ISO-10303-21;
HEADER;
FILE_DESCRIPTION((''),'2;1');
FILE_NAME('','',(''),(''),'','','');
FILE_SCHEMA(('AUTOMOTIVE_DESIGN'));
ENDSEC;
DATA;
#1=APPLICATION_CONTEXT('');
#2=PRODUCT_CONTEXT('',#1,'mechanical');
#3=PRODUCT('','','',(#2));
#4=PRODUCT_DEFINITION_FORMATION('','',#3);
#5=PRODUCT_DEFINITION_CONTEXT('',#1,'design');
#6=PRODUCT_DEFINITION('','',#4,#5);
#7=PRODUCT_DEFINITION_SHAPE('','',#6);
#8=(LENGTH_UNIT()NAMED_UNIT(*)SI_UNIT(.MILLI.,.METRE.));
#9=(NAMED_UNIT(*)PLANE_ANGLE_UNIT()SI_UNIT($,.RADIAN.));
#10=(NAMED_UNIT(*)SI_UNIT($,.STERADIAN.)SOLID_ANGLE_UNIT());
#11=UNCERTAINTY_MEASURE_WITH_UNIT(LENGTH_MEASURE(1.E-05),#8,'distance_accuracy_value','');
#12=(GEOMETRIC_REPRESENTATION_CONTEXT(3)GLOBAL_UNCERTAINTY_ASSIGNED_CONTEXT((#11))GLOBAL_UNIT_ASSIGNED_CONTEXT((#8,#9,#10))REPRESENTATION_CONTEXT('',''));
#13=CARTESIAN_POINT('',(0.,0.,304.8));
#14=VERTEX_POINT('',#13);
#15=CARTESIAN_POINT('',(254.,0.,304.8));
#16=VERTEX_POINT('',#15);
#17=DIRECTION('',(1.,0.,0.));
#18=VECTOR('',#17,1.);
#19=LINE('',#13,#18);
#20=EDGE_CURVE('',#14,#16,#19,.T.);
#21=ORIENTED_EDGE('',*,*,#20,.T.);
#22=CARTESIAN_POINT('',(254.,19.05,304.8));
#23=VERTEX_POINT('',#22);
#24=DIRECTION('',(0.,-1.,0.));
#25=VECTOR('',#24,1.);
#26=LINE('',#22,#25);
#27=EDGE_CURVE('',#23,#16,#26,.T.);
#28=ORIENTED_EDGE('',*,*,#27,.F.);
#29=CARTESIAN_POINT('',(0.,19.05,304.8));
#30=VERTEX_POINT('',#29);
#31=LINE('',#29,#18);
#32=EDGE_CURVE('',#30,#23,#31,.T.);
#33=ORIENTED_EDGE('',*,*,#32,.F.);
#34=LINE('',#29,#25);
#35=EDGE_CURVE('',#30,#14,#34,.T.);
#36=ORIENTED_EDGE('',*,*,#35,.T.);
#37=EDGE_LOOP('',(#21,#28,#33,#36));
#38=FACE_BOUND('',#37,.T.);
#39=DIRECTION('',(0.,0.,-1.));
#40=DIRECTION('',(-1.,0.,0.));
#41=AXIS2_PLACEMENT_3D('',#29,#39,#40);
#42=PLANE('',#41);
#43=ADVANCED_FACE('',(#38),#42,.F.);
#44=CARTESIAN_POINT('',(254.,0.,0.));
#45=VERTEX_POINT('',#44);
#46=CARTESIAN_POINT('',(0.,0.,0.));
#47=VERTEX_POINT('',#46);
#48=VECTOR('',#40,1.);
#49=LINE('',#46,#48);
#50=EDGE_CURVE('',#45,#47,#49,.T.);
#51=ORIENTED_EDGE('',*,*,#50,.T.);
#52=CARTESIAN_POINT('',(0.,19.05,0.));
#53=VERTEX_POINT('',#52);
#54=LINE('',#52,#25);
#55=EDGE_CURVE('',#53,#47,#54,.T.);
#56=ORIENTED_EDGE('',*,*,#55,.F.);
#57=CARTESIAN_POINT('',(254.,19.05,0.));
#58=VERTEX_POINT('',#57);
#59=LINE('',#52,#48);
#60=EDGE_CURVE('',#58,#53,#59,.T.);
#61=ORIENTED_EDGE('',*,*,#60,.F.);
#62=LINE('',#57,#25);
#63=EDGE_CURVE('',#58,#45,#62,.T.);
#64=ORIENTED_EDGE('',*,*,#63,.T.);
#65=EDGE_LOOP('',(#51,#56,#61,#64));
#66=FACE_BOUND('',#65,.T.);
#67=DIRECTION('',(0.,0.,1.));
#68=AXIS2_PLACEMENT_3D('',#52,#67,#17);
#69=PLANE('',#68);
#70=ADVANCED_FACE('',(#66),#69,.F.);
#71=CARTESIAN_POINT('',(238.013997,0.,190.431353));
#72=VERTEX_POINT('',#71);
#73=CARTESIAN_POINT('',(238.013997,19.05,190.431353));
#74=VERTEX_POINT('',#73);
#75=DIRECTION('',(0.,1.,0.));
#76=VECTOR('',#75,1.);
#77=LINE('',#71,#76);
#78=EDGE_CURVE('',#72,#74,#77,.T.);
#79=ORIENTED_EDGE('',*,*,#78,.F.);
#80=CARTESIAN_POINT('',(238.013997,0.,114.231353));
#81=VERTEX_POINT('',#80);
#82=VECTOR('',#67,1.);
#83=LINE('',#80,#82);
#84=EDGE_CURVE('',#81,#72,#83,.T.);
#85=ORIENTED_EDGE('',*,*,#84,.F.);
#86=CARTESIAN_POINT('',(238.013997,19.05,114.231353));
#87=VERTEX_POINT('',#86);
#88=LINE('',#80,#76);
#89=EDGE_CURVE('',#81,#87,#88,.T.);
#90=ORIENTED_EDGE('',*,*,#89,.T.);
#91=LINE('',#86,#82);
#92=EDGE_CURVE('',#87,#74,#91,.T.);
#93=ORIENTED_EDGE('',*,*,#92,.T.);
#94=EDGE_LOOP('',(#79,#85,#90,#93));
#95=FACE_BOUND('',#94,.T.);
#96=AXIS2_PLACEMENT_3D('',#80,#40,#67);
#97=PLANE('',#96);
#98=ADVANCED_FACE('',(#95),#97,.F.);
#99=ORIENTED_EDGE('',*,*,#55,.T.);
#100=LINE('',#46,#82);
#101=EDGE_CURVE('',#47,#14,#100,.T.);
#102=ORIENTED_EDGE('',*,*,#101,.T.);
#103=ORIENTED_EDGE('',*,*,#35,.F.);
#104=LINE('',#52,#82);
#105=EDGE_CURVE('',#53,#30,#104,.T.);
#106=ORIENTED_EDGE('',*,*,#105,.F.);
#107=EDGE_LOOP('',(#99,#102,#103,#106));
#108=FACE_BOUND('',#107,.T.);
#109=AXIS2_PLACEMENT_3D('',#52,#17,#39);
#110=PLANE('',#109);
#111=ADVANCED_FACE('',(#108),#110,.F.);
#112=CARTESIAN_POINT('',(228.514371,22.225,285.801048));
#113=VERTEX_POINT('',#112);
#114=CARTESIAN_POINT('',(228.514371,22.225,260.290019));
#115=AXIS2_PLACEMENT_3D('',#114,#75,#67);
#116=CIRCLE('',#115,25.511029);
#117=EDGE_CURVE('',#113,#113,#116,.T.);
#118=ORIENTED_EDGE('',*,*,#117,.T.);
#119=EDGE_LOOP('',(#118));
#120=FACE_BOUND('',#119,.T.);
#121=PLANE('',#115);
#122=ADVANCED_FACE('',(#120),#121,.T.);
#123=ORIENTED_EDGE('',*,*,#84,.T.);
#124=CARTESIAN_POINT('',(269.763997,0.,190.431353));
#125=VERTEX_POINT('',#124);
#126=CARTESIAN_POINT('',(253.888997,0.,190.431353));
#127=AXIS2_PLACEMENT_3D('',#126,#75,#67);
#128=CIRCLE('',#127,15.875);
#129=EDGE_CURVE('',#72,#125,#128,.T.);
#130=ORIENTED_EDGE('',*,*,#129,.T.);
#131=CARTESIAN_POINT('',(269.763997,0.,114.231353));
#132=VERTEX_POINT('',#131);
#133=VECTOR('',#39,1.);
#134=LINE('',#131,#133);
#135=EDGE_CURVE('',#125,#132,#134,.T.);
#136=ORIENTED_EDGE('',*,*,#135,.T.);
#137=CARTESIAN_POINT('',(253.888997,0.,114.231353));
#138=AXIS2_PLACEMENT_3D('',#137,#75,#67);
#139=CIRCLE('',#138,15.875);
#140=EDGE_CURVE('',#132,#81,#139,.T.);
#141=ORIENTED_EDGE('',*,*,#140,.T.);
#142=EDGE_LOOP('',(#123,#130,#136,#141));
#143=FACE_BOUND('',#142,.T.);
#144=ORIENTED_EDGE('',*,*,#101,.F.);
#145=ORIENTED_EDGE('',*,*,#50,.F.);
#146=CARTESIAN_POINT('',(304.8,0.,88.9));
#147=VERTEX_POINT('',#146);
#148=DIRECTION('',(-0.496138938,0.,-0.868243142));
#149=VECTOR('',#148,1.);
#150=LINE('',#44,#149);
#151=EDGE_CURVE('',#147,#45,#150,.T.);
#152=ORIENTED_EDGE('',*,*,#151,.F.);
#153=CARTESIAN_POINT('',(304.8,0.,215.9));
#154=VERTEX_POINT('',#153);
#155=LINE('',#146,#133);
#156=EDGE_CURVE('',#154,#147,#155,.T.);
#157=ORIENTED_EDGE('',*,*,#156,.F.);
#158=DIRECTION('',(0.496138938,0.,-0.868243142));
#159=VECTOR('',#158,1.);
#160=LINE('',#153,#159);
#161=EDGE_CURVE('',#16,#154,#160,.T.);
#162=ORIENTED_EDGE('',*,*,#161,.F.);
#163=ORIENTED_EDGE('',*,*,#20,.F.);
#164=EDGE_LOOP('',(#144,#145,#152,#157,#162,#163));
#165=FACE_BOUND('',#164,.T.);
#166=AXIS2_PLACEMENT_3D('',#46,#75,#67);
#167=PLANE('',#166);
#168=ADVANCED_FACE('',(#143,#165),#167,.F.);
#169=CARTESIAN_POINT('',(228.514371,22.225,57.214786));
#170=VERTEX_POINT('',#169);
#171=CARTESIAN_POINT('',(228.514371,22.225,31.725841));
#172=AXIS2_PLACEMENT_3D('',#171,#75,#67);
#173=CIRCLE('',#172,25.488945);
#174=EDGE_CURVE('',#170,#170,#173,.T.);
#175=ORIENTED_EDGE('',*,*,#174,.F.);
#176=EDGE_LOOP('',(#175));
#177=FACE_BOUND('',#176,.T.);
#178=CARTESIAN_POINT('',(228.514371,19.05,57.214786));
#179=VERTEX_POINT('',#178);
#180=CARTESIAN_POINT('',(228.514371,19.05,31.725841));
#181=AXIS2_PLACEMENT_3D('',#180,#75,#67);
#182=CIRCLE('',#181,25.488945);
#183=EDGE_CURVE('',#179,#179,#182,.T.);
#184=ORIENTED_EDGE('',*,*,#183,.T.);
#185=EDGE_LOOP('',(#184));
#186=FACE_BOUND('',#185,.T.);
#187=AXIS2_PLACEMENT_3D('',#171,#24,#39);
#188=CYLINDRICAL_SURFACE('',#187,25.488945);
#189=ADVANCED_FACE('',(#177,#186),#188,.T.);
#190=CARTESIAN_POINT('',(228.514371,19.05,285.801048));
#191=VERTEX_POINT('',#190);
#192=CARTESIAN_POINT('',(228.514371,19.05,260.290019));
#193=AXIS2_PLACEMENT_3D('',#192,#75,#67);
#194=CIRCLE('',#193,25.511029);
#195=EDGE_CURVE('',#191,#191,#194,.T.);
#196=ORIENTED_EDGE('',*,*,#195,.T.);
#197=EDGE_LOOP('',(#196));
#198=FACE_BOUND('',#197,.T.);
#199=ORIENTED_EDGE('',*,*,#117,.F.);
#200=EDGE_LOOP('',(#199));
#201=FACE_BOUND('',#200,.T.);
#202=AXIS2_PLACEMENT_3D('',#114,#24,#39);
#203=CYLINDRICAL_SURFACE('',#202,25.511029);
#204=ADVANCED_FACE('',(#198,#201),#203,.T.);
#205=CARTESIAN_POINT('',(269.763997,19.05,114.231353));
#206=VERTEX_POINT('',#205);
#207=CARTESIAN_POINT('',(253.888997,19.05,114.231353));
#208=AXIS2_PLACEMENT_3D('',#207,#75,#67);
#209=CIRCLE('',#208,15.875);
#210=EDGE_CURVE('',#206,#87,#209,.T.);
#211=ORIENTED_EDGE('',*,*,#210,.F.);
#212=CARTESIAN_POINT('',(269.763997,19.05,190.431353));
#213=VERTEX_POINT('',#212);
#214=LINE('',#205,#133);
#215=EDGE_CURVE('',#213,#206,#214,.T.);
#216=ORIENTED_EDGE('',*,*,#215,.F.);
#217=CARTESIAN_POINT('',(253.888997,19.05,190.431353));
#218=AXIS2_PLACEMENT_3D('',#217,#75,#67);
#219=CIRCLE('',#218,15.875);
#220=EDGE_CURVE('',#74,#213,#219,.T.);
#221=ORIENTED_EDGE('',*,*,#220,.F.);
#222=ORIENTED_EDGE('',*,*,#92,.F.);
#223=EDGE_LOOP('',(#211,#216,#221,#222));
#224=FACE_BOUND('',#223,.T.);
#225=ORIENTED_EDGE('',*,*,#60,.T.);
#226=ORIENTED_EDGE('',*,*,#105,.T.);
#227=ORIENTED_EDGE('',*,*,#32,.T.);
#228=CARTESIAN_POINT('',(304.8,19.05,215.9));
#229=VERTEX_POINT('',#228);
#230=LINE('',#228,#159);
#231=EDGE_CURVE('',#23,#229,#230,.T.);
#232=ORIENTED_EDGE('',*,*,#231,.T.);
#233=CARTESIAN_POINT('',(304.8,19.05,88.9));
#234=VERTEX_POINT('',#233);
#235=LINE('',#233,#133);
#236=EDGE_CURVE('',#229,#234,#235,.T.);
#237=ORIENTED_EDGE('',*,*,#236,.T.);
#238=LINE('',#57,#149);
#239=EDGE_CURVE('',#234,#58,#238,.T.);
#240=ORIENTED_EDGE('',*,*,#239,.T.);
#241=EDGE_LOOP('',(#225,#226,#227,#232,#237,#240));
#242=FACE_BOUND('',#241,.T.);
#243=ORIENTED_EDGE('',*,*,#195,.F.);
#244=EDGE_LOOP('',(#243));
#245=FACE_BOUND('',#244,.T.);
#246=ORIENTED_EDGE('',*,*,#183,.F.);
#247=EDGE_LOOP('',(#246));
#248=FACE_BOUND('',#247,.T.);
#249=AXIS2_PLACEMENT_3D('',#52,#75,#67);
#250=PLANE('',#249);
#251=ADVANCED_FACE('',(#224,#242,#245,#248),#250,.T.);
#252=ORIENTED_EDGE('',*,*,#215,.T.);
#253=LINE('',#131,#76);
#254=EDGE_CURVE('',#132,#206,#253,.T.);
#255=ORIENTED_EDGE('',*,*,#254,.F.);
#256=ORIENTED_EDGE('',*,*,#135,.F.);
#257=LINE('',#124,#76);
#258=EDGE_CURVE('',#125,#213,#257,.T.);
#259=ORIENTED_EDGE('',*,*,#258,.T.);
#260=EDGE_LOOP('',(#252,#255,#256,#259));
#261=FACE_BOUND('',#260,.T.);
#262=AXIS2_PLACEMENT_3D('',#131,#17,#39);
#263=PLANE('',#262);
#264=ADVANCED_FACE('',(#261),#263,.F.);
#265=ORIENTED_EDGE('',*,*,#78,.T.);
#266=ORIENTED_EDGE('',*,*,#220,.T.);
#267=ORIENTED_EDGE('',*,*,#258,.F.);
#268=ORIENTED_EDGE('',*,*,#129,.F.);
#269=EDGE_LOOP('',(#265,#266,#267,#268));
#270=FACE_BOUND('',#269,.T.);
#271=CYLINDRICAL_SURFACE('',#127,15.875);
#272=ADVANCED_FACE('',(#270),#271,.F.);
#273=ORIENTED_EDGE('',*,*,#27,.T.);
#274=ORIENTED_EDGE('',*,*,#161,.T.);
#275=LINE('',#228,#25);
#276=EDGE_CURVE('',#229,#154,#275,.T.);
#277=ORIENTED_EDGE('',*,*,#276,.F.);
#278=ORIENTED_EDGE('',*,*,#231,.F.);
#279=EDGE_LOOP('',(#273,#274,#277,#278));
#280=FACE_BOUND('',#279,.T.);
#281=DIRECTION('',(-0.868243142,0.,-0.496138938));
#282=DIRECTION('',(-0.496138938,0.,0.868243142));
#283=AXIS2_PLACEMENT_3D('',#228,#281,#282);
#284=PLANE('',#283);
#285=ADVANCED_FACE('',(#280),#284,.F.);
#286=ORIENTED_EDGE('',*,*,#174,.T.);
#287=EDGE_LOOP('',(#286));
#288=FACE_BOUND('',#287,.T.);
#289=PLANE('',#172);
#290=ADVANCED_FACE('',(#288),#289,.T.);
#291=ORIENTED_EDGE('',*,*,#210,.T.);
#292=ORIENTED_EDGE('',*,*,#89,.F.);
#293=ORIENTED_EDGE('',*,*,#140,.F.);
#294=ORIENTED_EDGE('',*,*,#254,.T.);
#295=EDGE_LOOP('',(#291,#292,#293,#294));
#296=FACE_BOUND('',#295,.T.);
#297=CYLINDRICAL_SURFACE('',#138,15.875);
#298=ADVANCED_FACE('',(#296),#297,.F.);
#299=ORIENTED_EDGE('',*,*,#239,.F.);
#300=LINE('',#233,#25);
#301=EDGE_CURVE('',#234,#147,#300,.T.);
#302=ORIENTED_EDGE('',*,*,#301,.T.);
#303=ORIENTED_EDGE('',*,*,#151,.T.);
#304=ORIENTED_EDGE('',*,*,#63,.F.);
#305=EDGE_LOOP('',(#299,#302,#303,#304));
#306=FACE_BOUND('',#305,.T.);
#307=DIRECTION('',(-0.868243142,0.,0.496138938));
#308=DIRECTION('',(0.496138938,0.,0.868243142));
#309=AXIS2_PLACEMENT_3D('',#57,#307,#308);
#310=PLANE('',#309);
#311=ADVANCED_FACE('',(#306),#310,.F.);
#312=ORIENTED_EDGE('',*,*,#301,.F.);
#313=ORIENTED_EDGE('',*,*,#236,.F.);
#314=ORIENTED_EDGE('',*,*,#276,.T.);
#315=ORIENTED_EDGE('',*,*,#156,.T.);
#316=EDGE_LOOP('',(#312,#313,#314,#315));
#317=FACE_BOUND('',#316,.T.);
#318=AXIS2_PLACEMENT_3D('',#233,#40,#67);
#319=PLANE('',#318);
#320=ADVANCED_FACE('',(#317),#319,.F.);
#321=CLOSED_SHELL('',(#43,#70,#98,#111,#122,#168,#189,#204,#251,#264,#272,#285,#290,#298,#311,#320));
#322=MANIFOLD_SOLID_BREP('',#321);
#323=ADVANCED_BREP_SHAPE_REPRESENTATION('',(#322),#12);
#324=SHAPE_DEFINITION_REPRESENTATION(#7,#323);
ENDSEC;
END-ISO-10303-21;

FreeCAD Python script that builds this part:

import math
import FreeCAD as App
import Part
import Sketcher
from FreeCAD import Vector
Q = App.Units.Quantity

doc = App.newDocument("Part")
params = doc.addObject("Spreadsheet::Sheet", "Params")
for row, (alias, value) in enumerate([
    ("sketch1_width", "10 in"),
    ("sketch1_height", "12 in"),
    ("sketch1_height2", "5 in"),
    ("pad1_length", "0.75 in"),
    ("pad2_length", "0.125 in"),
    ("sketch3_height", "3 in"),
    ("sketch3_radius", "0.625 in"),
    ("pocket1_length", "0.75 in"),
], start=1):
    params.set(f"A{row}", alias)
    params.set(f"B{row}", "=" + value)
    params.setAlias(f"B{row}", alias)

body = doc.addObject("PartDesign::Body", "Body")

sketch1 = body.newObject("Sketcher::SketchObject", "Sketch")
sketch1.AttachmentSupport = (doc.getObject("XZ_Plane"), [""])
sketch1.MapMode = "FlatFace"
sketch1.addGeometry([
    Part.LineSegment(Vector(254, 0, 0), Vector(0, 0, 0)),
    Part.LineSegment(Vector(0, 0, 0), Vector(0, 305, 0)),
    Part.LineSegment(Vector(0, 305, 0), Vector(254, 305, 0)),
    Part.LineSegment(Vector(254, 305, 0), Vector(305, 216, 0)),
    Part.LineSegment(Vector(305, 216, 0), Vector(305, 89, 0)),
    Part.LineSegment(Vector(305, 89, 0), Vector(254, 0, 0)),
], False)
sketch1.addConstraint([
    Sketcher.Constraint("Coincident", 0, 2, 1, 1),
    Sketcher.Constraint("Coincident", 1, 2, 2, 1),
    Sketcher.Constraint("Coincident", 2, 2, 3, 1),
    Sketcher.Constraint("Coincident", 3, 2, 4, 1),
    Sketcher.Constraint("Coincident", 4, 2, 5, 1),
    Sketcher.Constraint("Coincident", 5, 2, 0, 1),
    Sketcher.Constraint("Horizontal", 0),
    Sketcher.Constraint("Vertical", 1),
    Sketcher.Constraint("Horizontal", 2),
    Sketcher.Constraint("Vertical", 4),
    Sketcher.Constraint("Coincident", 0, 2, -1, 1),
    Sketcher.Constraint("Vertical", 2, 2, 5, 2),
    Sketcher.Constraint("Equal", 3, 5),
    Sketcher.Constraint("DistanceX", 0, 2, 0, 1, Q("10 in")),
    Sketcher.Constraint("DistanceY", 1, 1, 1, 2, Q("12 in")),
    Sketcher.Constraint("DistanceY", 4, 2, 4, 1, Q("5 in")),
    Sketcher.Constraint("DistanceX", -1, 1, 3, 2, Q("12 in")),
])
sketch1.setExpression("Constraints[13]", "Params.sketch1_width")
sketch1.setExpression("Constraints[14]", "Params.sketch1_height")
sketch1.setExpression("Constraints[15]", "Params.sketch1_height2")
pad1 = body.newObject("PartDesign::Pad", "Pad")
pad1.Profile = sketch1
pad1.setExpression("Length", "Params.pad1_length")
pad1.Reversed = True

sketch2 = body.newObject("Sketcher::SketchObject", "Sketch001")
sketch2.AttachmentSupport = (doc.getObject("XZ_Plane"), [""])
sketch2.MapMode = "FlatFace"
sketch2.AttachmentOffset = App.Placement(Vector(0, 0, -0.75 * 25.4), App.Rotation())
sketch2.addGeometry([
    Part.Circle(Vector(229, 32, 0), Vector(0, 0, 1), 25),
    Part.Circle(Vector(229, 260, 0), Vector(0, 0, 1), 26),
], False)
sketch2.addConstraint([
    Sketcher.Constraint("Vertical", 0, 3, 1, 3),
    Sketcher.Constraint("Diameter", 0, Q("50.97789 mm")),
    Sketcher.Constraint("Diameter", 1, Q("51.022059 mm")),
    Sketcher.Constraint("DistanceX", -1, 1, 0, 3, Q("228.514371 mm")),
    Sketcher.Constraint("DistanceY", -1, 1, 0, 3, Q("31.725841 mm")),
    Sketcher.Constraint("DistanceY", -1, 1, 1, 3, Q("260.290019 mm")),
])
pad2 = body.newObject("PartDesign::Pad", "Pad001")
pad2.Profile = sketch2
pad2.setExpression("Length", "Params.pad2_length")
pad2.Reversed = True

sketch3 = body.newObject("Sketcher::SketchObject", "Sketch002")
sketch3.AttachmentSupport = (doc.getObject("XZ_Plane"), [""])
sketch3.MapMode = "FlatFace"
sketch3.AttachmentOffset = App.Placement(Vector(0, 0, -0.75 * 25.4), App.Rotation())
sketch3.addGeometry([
    Part.LineSegment(Vector(270, 190, 0), Vector(270, 114, 0)),
    Part.ArcOfCircle(Part.Circle(Vector(254, 114, 0), Vector(0, 0, 1), 16), math.radians(180), math.radians(360)),
    Part.LineSegment(Vector(238, 114, 0), Vector(238, 190, 0)),
    Part.ArcOfCircle(Part.Circle(Vector(254, 190, 0), Vector(0, 0, 1), 16), math.radians(0), math.radians(180)),
], False)
sketch3.addConstraint([
    Sketcher.Constraint("Tangent", 0, 2, 1, 2),
    Sketcher.Constraint("Tangent", 1, 1, 2, 1),
    Sketcher.Constraint("Tangent", 2, 2, 3, 2),
    Sketcher.Constraint("Tangent", 3, 1, 0, 1),
    Sketcher.Constraint("Vertical", 0),
    Sketcher.Constraint("Vertical", 2),
    Sketcher.Constraint("DistanceY", 0, 2, 0, 1, Q("3 in")),
    Sketcher.Constraint("Radius", 1, Q("0.625 in")),
    Sketcher.Constraint("DistanceX", -1, 1, 1, 3, Q("253.888997 mm")),
    Sketcher.Constraint("DistanceY", -1, 1, 1, 3, Q("114.231353 mm")),
])
sketch3.setExpression("Constraints[6]", "Params.sketch3_height")
sketch3.setExpression("Constraints[7]", "Params.sketch3_radius")
pocket1 = body.newObject("PartDesign::Pocket", "Pocket")
pocket1.Profile = sketch3
pocket1.setExpression("Length", "Params.pocket1_length")
pocket1.Reversed = True

doc.recompute()
